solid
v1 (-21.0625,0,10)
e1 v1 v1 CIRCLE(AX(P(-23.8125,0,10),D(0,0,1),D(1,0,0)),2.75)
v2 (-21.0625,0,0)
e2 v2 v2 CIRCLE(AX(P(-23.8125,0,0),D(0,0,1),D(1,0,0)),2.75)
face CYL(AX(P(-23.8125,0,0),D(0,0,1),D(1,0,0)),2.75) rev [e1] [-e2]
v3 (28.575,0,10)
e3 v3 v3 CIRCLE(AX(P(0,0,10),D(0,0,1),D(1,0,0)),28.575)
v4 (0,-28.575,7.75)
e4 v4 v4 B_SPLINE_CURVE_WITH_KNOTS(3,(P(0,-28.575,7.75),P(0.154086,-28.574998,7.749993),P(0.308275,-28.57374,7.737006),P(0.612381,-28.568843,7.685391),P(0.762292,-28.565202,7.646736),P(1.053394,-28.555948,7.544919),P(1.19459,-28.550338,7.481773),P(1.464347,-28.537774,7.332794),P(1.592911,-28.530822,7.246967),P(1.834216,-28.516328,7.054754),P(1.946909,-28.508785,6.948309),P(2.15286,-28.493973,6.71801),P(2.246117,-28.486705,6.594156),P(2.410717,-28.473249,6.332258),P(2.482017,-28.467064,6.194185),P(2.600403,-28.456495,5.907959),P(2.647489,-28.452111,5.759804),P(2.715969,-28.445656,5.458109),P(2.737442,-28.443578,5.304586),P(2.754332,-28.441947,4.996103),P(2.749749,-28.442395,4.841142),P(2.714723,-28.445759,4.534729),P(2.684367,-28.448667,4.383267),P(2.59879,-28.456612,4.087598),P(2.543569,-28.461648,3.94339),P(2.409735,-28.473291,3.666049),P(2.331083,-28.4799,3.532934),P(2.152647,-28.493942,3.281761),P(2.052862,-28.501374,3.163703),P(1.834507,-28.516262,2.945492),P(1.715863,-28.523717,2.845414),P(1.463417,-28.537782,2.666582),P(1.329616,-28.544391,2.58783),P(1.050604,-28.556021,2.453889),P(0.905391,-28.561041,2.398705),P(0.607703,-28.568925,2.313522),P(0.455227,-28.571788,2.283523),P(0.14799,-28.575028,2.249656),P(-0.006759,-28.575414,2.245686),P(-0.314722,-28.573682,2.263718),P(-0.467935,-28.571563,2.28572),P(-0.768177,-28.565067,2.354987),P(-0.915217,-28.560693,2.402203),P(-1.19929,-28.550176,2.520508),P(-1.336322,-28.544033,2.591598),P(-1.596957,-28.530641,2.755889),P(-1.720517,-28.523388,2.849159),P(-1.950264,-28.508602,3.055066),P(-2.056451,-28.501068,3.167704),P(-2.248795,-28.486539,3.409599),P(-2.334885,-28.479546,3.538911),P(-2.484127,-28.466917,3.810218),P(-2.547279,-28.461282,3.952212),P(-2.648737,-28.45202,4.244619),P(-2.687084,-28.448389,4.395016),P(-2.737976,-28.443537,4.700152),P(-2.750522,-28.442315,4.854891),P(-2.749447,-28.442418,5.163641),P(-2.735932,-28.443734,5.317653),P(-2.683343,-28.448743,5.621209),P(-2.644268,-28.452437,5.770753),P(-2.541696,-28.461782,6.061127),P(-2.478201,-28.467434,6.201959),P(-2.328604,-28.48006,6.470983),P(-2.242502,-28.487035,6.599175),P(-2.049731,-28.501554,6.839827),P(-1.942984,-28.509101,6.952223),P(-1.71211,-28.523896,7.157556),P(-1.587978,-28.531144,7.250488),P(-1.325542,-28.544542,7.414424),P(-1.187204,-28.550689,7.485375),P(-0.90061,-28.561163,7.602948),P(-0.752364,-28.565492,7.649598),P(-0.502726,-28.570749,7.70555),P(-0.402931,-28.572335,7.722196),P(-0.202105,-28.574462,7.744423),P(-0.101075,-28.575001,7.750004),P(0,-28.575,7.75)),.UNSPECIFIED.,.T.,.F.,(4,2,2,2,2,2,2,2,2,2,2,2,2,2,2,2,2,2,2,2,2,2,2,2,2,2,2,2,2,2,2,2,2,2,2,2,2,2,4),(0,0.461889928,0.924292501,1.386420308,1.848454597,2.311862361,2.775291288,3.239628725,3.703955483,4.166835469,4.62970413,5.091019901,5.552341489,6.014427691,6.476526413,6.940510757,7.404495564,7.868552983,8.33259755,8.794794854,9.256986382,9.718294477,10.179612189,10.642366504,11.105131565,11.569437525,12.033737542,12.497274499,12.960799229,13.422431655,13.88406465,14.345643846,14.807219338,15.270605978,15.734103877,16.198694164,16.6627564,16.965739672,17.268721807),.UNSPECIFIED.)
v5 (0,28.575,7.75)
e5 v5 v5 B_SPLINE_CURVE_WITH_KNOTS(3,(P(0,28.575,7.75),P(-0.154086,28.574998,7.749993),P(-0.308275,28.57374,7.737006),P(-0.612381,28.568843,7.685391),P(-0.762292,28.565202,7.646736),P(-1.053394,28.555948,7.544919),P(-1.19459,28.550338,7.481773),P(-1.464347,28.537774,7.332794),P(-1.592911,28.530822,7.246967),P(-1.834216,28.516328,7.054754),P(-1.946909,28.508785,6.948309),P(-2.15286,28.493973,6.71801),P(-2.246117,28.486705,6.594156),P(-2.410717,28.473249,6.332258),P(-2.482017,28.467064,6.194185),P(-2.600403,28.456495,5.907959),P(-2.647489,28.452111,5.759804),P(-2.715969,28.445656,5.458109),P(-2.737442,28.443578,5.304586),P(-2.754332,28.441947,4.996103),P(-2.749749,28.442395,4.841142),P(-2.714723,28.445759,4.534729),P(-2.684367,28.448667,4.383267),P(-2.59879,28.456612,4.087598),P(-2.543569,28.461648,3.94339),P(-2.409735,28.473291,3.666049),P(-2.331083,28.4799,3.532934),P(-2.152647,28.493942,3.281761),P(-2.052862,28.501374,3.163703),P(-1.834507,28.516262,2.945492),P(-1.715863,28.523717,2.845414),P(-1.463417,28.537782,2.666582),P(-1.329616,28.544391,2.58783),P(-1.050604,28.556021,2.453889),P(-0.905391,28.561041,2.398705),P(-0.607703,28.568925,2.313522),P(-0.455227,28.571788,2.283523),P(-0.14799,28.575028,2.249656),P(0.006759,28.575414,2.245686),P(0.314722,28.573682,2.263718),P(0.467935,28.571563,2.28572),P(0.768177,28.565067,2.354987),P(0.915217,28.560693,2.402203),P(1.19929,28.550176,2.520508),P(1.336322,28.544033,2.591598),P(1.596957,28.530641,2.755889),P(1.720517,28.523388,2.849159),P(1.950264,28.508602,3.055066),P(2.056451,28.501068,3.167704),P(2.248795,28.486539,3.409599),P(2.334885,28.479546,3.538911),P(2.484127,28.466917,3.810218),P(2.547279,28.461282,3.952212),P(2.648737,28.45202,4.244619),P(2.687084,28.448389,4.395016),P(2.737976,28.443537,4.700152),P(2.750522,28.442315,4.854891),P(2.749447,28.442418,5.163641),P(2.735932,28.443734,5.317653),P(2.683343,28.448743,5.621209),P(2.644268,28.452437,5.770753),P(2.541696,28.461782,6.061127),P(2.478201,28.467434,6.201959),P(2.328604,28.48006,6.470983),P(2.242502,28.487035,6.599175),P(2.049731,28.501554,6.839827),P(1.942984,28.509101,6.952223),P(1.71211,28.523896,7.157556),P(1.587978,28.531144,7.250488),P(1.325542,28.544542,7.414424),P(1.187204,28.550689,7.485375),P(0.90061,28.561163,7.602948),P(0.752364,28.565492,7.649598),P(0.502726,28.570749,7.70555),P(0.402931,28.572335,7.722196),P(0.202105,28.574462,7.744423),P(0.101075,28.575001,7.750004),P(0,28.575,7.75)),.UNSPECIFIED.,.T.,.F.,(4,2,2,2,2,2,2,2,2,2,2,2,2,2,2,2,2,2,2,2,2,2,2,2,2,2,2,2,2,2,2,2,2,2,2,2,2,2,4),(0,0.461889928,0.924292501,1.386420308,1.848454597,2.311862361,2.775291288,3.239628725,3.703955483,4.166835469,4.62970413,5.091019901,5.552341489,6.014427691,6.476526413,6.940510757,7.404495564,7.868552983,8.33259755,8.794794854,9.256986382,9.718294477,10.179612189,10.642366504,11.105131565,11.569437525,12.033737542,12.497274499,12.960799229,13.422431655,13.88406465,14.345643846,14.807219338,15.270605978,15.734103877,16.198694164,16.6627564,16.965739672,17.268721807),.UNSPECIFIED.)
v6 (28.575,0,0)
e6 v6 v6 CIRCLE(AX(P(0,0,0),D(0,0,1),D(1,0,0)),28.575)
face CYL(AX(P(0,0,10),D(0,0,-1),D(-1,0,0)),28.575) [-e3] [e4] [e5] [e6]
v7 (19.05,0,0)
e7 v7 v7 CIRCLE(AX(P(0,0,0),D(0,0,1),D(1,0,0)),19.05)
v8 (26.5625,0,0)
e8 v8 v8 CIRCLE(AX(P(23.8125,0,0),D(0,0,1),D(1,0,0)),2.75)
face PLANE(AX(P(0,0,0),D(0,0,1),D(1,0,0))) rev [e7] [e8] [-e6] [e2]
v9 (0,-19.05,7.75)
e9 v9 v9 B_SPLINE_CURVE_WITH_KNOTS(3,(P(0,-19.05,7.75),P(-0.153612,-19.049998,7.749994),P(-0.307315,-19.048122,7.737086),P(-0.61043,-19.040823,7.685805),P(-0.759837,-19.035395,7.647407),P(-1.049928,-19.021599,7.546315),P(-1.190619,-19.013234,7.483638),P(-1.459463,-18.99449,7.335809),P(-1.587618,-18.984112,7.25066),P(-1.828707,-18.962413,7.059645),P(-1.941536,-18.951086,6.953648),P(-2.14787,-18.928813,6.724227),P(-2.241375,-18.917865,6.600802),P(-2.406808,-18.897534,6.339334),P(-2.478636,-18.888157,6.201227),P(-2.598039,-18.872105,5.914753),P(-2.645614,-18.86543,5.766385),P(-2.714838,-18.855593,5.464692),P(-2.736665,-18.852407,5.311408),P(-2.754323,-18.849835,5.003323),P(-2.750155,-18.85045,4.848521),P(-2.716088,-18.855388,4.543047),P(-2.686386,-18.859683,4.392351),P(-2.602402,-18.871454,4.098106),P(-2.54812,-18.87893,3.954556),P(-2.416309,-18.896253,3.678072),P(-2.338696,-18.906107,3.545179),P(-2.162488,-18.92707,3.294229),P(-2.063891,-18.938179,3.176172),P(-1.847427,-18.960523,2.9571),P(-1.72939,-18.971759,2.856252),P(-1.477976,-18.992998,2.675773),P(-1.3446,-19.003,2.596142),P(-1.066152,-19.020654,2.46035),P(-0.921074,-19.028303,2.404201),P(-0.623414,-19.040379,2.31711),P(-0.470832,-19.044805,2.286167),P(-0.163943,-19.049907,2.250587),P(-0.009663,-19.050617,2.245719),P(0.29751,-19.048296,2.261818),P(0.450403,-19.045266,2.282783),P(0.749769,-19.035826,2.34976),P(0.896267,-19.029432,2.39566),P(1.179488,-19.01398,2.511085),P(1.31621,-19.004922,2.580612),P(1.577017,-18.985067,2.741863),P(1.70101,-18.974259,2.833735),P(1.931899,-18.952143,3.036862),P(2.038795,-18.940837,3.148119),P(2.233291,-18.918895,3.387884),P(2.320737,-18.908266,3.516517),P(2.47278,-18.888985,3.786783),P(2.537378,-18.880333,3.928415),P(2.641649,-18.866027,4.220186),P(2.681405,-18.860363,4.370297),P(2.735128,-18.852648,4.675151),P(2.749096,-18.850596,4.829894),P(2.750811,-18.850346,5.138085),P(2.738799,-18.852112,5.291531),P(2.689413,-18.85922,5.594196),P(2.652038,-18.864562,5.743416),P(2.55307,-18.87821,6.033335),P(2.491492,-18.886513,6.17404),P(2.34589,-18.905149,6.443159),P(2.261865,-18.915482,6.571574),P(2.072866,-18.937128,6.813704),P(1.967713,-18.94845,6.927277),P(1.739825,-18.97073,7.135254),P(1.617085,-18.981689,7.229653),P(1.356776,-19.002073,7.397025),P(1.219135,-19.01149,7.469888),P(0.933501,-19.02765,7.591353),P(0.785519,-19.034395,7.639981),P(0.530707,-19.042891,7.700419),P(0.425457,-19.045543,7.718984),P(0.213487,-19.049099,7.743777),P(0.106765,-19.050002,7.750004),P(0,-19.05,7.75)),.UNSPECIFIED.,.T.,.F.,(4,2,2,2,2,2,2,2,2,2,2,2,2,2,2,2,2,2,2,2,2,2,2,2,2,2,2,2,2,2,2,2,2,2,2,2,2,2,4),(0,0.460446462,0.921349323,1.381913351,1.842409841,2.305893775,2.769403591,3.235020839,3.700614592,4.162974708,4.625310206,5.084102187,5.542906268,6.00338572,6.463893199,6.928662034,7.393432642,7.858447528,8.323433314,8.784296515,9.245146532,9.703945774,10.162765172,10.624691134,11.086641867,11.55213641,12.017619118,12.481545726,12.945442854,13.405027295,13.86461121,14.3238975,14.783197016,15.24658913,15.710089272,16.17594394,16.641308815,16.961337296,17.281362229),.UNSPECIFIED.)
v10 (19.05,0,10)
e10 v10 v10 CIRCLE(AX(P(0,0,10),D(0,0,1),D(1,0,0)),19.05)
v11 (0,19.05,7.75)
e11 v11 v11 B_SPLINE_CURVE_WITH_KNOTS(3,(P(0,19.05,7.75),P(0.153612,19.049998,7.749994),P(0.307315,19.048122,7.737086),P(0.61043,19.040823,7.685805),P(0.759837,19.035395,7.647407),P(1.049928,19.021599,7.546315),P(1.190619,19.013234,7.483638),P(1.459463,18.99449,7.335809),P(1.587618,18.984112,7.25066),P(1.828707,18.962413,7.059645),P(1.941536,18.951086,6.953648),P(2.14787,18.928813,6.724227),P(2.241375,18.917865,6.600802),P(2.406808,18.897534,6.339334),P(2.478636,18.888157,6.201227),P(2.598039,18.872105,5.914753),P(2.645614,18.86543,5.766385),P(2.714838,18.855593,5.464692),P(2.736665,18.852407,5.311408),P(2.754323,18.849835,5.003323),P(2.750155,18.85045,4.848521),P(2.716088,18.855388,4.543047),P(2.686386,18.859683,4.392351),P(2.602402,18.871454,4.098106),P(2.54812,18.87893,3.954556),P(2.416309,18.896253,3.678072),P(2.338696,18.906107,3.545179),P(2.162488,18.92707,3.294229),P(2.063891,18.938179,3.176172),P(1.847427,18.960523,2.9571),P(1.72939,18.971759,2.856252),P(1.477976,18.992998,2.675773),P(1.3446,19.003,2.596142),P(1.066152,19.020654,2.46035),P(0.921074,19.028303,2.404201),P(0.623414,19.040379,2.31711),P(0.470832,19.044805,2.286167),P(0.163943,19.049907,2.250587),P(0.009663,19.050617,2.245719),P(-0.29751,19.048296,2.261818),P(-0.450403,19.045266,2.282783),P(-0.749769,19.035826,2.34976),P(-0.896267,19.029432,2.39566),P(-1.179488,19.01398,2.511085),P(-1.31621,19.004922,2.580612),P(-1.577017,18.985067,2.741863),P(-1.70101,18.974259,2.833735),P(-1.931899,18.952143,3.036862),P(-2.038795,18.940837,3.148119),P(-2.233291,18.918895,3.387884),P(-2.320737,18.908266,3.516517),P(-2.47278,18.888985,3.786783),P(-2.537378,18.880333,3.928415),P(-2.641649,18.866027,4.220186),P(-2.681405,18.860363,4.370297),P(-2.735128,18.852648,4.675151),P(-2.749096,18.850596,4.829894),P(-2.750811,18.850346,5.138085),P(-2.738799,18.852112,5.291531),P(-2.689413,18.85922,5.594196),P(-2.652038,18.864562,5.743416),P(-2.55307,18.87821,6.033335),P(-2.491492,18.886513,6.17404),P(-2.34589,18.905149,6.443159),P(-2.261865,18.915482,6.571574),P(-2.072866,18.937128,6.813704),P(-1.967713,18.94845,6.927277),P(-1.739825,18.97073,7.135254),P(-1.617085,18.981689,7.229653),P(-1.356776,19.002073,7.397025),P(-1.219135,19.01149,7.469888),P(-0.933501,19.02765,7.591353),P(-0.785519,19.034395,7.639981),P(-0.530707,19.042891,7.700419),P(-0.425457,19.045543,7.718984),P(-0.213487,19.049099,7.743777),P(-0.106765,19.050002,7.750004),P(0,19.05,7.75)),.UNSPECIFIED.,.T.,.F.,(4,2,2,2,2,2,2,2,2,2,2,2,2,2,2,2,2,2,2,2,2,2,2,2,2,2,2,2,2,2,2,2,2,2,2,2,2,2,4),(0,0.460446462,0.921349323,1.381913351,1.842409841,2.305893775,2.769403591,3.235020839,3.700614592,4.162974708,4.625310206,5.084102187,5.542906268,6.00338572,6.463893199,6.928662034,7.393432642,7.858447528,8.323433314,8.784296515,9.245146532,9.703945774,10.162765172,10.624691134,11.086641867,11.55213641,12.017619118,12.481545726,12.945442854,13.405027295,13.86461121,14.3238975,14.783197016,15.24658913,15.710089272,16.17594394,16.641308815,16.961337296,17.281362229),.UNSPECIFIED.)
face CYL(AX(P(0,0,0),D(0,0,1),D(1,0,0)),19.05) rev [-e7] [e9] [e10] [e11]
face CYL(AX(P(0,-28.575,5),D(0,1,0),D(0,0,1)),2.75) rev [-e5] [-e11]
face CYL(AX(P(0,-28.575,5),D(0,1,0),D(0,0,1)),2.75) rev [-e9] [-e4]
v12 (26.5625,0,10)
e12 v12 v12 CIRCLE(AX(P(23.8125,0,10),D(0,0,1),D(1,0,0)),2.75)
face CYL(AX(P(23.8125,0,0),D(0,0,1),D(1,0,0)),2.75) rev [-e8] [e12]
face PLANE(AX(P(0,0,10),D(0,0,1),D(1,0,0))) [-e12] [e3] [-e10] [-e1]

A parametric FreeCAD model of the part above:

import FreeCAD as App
import Part
import Sketcher

V = App.Vector
Q = App.Units.Quantity

doc = App.newDocument("Part")
params = doc.addObject("Spreadsheet::Sheet", "Params")
for row, (alias, value) in enumerate([
    ("sketch1_diameter", "57.15 mm"),
    ("pad1_length", "10 mm"),
    ("sketch2_diameter", "38.1 mm"),
    ("sketch3_diameter", "5.5 mm"),
    ("sketch4_diameter", "5.5 mm"),
], start=1):
    params.set(f"A{row}", alias)
    params.set(f"B{row}", "=" + value)
    params.setAlias(f"B{row}", alias)

body = doc.addObject("PartDesign::Body", "Body")

# Sketch on XY plane
sketch1 = body.newObject("Sketcher::SketchObject", "Sketch")
sketch1.AttachmentSupport = (doc.getObject("XY_Plane"), [""])
sketch1.MapMode = "FlatFace"
sketch1.addGeometry(Part.Circle(V(0, 0, 0), V(0, 0, 1), 29), False)
sketch1.addConstraint(Sketcher.Constraint("Coincident", 0, 3, -1, 1))
sketch1.addConstraint(Sketcher.Constraint("Diameter", 0, Q("57.15 mm")))
sketch1.setExpression("Constraints[1]", "Params.sketch1_diameter")
pad1 = body.newObject("PartDesign::Pad", "Pad")
pad1.Profile = sketch1
pad1.setExpression("Length", "Params.pad1_length")

# Sketch on XY plane
sketch2 = body.newObject("Sketcher::SketchObject", "Sketch001")
sketch2.AttachmentSupport = (doc.getObject("XY_Plane"), [""])
sketch2.MapMode = "FlatFace"
sketch2.AttachmentOffset = App.Placement(V(0, 0, 10), App.Rotation())
sketch2.addGeometry(Part.Circle(V(0, 0, 0), V(0, 0, 1), 19), False)
sketch2.addConstraint(Sketcher.Constraint("Coincident", 0, 3, -1, 1))
sketch2.addConstraint(Sketcher.Constraint("Diameter", 0, Q("38.1 mm")))
sketch2.setExpression("Constraints[1]", "Params.sketch2_diameter")
pocket1 = body.newObject("PartDesign::Pocket", "Pocket")
pocket1.Profile = sketch2
pocket1.Type = "ThroughAll"

# Sketch on XZ plane
sketch3 = body.newObject("Sketcher::SketchObject", "Sketch002")
sketch3.AttachmentSupport = (doc.getObject("XZ_Plane"), [""])
sketch3.MapMode = "FlatFace"
sketch3.AttachmentOffset = App.Placement(V(0, 0, -28.575), App.Rotation())
sketch3.addGeometry(Part.Circle(V(0, 5, 0), V(0, 0, 1), 2.8), False)
sketch3.addConstraint(Sketcher.Constraint("PointOnObject", 0, 3, -2))
sketch3.addConstraint(Sketcher.Constraint("Diameter", 0, Q("5.5 mm")))
sketch3.addConstraint(Sketcher.Constraint("DistanceY", -1, 1, 0, 3, Q("5 mm")))
sketch3.setExpression("Constraints[1]", "Params.sketch3_diameter")
pocket2 = body.newObject("PartDesign::Pocket", "Pocket001")
pocket2.Profile = sketch3
pocket2.Type = "ThroughAll"
pocket2.Reversed = True

# Sketch on XY plane
sketch4 = body.newObject("Sketcher::SketchObject", "Sketch003")
sketch4.AttachmentSupport = (doc.getObject("XY_Plane"), [""])
sketch4.MapMode = "FlatFace"
sketch4.AttachmentOffset = App.Placement(V(0, 0, 10), App.Rotation())
sketch4.addGeometry(Part.Circle(V(-23.8, 0, 0), V(0, 0, 1), 2.8), False)
sketch4.addGeometry(Part.Circle(V(23.8, 0, 0), V(0, 0, 1), 2.8), False)
sketch4.addConstraint(Sketcher.Constraint("Equal", 0, 1))
sketch4.addConstraint(Sketcher.Constraint("Symmetric", 0, 3, 1, 3, -1, 1))
sketch4.addConstraint(Sketcher.Constraint("PointOnObject", 0, 3, -1))
sketch4.addConstraint(Sketcher.Constraint("Diameter", 0, Q("5.5 mm")))
sketch4.addConstraint(Sketcher.Constraint("DistanceX", 0, 3, 1, 3, Q("47.625 mm")))
sketch4.setExpression("Constraints[3]", "Params.sketch4_diameter")
pocket3 = body.newObject("PartDesign::Pocket", "Pocket002")
pocket3.Profile = sketch4
pocket3.Type = "ThroughAll"

doc.recompute()
